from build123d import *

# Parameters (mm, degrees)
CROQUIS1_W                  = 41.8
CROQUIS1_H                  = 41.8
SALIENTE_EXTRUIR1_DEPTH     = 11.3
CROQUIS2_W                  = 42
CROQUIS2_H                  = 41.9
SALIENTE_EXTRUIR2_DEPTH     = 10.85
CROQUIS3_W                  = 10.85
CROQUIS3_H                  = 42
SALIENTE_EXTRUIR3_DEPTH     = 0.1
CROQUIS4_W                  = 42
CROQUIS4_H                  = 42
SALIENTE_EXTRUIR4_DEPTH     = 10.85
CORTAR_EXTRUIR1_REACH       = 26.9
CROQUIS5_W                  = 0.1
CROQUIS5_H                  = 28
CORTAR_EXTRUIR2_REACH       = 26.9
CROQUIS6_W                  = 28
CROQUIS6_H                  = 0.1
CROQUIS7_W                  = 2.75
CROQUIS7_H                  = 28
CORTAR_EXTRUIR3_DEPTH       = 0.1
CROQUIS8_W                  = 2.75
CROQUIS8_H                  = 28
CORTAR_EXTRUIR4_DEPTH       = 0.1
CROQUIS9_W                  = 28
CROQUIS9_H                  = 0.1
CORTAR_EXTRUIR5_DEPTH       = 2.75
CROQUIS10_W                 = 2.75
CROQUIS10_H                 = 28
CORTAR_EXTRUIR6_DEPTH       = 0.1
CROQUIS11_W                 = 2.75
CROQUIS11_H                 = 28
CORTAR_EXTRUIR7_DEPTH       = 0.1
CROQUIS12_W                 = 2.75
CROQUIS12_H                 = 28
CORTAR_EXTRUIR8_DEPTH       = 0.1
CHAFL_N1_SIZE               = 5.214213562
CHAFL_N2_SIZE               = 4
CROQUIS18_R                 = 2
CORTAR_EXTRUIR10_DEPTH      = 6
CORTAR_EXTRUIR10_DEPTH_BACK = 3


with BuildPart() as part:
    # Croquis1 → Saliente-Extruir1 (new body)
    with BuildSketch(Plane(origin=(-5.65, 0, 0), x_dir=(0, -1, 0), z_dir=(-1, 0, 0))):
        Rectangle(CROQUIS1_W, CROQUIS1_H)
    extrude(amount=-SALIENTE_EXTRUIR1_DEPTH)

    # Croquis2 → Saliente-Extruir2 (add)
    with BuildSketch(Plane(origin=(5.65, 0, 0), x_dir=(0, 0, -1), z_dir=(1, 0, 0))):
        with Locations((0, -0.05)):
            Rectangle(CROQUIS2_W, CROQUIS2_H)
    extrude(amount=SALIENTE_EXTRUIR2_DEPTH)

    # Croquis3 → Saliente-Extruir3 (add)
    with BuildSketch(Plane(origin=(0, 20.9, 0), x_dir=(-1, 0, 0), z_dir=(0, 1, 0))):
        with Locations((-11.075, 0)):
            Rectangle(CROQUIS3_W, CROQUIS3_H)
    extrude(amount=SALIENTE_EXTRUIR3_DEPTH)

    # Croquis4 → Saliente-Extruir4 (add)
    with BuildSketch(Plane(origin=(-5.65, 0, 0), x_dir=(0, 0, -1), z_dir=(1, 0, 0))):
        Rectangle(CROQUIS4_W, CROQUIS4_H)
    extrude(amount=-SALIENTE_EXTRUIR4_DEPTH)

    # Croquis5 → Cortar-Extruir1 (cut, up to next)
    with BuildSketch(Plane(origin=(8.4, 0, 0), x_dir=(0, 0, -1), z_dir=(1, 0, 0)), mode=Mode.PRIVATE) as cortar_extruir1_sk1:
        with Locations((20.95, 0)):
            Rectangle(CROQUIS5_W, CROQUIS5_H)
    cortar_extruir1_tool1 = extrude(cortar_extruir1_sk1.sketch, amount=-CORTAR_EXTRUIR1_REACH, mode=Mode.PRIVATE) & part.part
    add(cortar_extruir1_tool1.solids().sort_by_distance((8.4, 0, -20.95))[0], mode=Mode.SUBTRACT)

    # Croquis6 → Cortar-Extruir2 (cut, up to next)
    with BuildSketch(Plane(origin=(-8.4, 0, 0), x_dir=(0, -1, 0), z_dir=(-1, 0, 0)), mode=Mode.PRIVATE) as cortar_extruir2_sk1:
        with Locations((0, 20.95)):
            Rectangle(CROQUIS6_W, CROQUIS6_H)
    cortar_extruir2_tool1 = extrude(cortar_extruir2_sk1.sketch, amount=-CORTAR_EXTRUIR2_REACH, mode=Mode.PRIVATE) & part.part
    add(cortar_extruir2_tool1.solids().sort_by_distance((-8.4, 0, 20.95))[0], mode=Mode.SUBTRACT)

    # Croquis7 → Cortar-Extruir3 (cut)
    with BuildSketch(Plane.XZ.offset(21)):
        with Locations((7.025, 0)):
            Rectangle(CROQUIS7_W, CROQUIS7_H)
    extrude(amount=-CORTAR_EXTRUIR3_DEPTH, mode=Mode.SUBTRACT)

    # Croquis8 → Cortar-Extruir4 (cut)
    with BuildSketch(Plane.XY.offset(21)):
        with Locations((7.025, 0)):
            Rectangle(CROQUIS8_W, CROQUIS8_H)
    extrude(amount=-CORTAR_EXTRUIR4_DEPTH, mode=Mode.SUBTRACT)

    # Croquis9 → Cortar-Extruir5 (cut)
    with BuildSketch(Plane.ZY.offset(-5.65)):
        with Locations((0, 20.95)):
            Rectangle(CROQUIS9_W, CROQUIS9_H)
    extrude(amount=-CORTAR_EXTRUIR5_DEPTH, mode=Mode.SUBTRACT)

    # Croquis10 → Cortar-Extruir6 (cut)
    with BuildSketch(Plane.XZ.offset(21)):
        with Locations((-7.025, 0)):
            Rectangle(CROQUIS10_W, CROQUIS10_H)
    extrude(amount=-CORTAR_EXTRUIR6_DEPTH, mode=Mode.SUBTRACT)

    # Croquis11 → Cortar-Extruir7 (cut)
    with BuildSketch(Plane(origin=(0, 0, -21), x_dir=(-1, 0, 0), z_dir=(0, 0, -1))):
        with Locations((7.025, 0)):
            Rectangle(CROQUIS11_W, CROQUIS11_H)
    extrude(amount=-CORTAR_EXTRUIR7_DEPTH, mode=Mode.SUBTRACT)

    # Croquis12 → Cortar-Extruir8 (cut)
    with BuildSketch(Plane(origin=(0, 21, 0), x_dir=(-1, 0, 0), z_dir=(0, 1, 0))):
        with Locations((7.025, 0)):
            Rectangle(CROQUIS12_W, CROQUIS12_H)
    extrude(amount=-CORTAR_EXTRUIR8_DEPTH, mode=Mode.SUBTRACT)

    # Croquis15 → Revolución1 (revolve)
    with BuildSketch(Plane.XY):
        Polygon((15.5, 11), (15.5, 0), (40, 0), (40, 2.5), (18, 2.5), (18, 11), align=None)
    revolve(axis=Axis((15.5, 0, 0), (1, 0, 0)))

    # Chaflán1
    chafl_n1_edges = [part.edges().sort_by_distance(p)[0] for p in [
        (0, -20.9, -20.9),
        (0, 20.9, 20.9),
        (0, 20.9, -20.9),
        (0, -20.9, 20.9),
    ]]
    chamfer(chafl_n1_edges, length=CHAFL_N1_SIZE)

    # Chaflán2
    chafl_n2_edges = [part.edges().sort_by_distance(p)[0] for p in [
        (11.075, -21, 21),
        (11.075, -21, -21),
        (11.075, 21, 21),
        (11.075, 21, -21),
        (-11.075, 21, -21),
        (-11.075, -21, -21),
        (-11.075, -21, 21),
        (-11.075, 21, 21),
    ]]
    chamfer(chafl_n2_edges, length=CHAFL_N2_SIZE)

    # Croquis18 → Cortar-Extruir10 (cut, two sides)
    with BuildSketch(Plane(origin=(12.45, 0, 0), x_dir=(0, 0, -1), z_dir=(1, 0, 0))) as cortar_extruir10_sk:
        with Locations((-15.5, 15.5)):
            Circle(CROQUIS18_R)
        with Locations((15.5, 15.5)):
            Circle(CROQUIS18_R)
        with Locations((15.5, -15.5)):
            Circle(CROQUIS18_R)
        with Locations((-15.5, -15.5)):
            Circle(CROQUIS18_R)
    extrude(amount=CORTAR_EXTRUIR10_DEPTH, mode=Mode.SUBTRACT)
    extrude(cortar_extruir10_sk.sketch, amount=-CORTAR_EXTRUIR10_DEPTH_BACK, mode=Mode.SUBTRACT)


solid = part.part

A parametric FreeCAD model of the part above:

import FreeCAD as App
import Part
import Sketcher
Q = App.Units.Quantity


def edges_at(feature, points):
    """Names of the edges that pass closest to the given points."""
    edges = feature.Shape.Edges
    near = lambda p: min(range(len(edges)), key=lambda i: edges[i].distToShape(Part.Vertex(*p))[0])
    return sorted({f"Edge{near(p) + 1}" for p in points})


def add_polygon(sketch, points):
    """Adds a closed chain of lines whose ends are joined by coincident constraints."""
    first, n = sketch.GeometryCount, len(points)
    for a, b in zip(points, points[1:] + points[:1]):
        sketch.addGeometry(Part.LineSegment(App.Vector(*a, 0), App.Vector(*b, 0)), False)
    for i in range(n):
        sketch.addConstraint(Sketcher.Constraint("Coincident", first + i, 2, first + (i + 1) % n, 1))

doc = App.newDocument("Part")
body = doc.addObject("PartDesign::Body", "Body")

# Sketch on YZ plane
sketch1 = doc.addObject("Sketcher::SketchObject", "Sketch")
body.addObject(sketch1)
sketch1.AttachmentSupport = (doc.YZ_Plane, [""])
sketch1.MapMode = "FlatFace"
sketch1.AttachmentOffset = App.Placement(App.Vector(0, 0, -5.65), App.Rotation())
add_polygon(sketch1, [(21, 21), (21, -21), (-21, -21), (-21, 21)])  # lines 0-3
sketch1.addConstraint([
    Sketcher.Constraint("Vertical", 0),
    Sketcher.Constraint("Horizontal", 1),
    Sketcher.Constraint("Vertical", 2),
    Sketcher.Constraint("Horizontal", 3),
    Sketcher.Constraint("Symmetric", 0, 2, 2, 2, -1, 1),
    Sketcher.Constraint("Equal", 3, 0),
    Sketcher.Constraint("DistanceX", 1, 2, 1, 1, Q("41.8 mm")),
])
pad1 = doc.addObject("PartDesign::Pad", "Pad")
body.addObject(pad1)
pad1.Profile = sketch1
pad1.Length = 11.3

# Sketch on YZ plane
sketch2 = doc.addObject("Sketcher::SketchObject", "Sketch001")
body.addObject(sketch2)
sketch2.AttachmentSupport = (doc.YZ_Plane, [""])
sketch2.MapMode = "FlatFace"
sketch2.AttachmentOffset = App.Placement(App.Vector(0, 0, 5.65), App.Rotation())
add_polygon(sketch2, [(21, 21), (-21, 21), (-21, -21), (21, -21)])  # lines 0-3
sketch2.addConstraint([
    Sketcher.Constraint("Horizontal", 0),
    Sketcher.Constraint("Vertical", 1),
    Sketcher.Constraint("Horizontal", 2),
    Sketcher.Constraint("Vertical", 3),
    Sketcher.Constraint("DistanceY", 1, 2, 1, 1, Q("42 mm")),
    Sketcher.Constraint("DistanceX", 0, 2, 0, 1, Q("41.9 mm")),
    Sketcher.Constraint("DistanceX", 0, 2, -1, 1, Q("21 mm")),
    Sketcher.Constraint("DistanceY", -1, 1, 0, 2, Q("21 mm")),
])
pad2 = doc.addObject("PartDesign::Pad", "Pad001")
body.addObject(pad2)
pad2.Profile = sketch2
pad2.Length = 10.85

# Sketch on XZ plane
sketch3 = doc.addObject("Sketcher::SketchObject", "Sketch002")
body.addObject(sketch3)
sketch3.AttachmentSupport = (doc.XZ_Plane, [""])
sketch3.MapMode = "FlatFace"
sketch3.AttachmentOffset = App.Placement(App.Vector(0, 0, -20.9), App.Rotation())
add_polygon(sketch3, [(16, 21), (16, -21), (6, -21), (6, 21)])  # lines 0-3
sketch3.addConstraint([
    Sketcher.Constraint("Vertical", 0),
    Sketcher.Constraint("Horizontal", 1),
    Sketcher.Constraint("Vertical", 2),
    Sketcher.Constraint("Horizontal", 3),
    Sketcher.Constraint("DistanceY", 0, 2, 0, 1, Q("42 mm")),
    Sketcher.Constraint("DistanceY", 0, 2, -1, 1, Q("21 mm")),
    Sketcher.Constraint("DistanceX", 1, 2, 1, 1, Q("10.85 mm")),
    Sketcher.Constraint("DistanceX", -1, 1, 0, 2, Q("16.5 mm")),
])
pad3 = doc.addObject("PartDesign::Pad", "Pad002")
body.addObject(pad3)
pad3.Profile = sketch3
pad3.Length = 0.1
pad3.Reversed = True

# Sketch on YZ plane
sketch4 = doc.addObject("Sketcher::SketchObject", "Sketch003")
body.addObject(sketch4)
sketch4.AttachmentSupport = (doc.YZ_Plane, [""])
sketch4.MapMode = "FlatFace"
sketch4.AttachmentOffset = App.Placement(App.Vector(0, 0, -5.65), App.Rotation())
add_polygon(sketch4, [(21, 21), (-21, 21), (-21, -21), (21, -21)])  # lines 0-3
sketch4.addConstraint([
    Sketcher.Constraint("Horizontal", 0),
    Sketcher.Constraint("Vertical", 1),
    Sketcher.Constraint("Horizontal", 2),
    Sketcher.Constraint("Vertical", 3),
    Sketcher.Constraint("Symmetric", 0, 2, 2, 2, -1, 1),
    Sketcher.Constraint("Equal", 2, 1),
    Sketcher.Constraint("DistanceX", 0, 2, 0, 1, Q("42 mm")),
])
pad4 = doc.addObject("PartDesign::Pad", "Pad003")
body.addObject(pad4)
pad4.Profile = sketch4
pad4.Length = 10.85
pad4.Reversed = True

# Sketch on YZ plane
sketch5 = doc.addObject("Sketcher::SketchObject", "Sketch004")
body.addObject(sketch5)
sketch5.AttachmentSupport = (doc.YZ_Plane, [""])
sketch5.MapMode = "FlatFace"
sketch5.AttachmentOffset = App.Placement(App.Vector(0, 0, 8.4), App.Rotation())
add_polygon(sketch5, [(14, -20.9), (-14, -20.9), (-14, -21), (14, -21)])  # lines 0-3
sketch5.addConstraint([
    Sketcher.Constraint("Horizontal", 0),
    Sketcher.Constraint("Vertical", 1),
    Sketcher.Constraint("Horizontal", 2),
    Sketcher.Constraint("Vertical", 3),
    Sketcher.Constraint("DistanceX", 0, 2, 0, 1, Q("28 mm")),
    Sketcher.Constraint("DistanceY", 1, 2, 1, 1, Q("0.1 mm")),
    Sketcher.Constraint("DistanceX", 0, 2, -1, 1, Q("14 mm")),
    Sketcher.Constraint("DistanceY", 1, 2, -1, 1, Q("21 mm")),
])
pocket1 = doc.addObject("PartDesign::Pocket", "Pocket")
body.addObject(pocket1)
pocket1.Profile = sketch5
pocket1.Type = "UpToFirst"

# Sketch on YZ plane
sketch6 = doc.addObject("Sketcher::SketchObject", "Sketch005")
body.addObject(sketch6)
sketch6.AttachmentSupport = (doc.YZ_Plane, [""])
sketch6.MapMode = "FlatFace"
sketch6.AttachmentOffset = App.Placement(App.Vector(0, 0, -8.4), App.Rotation())
add_polygon(sketch6, [(14, 21), (14, 20.9), (-14, 20.9), (-14, 21)])  # lines 0-3
sketch6.addConstraint([
    Sketcher.Constraint("Vertical", 0),
    Sketcher.Constraint("Horizontal", 1),
    Sketcher.Constraint("Vertical", 2),
    Sketcher.Constraint("Horizontal", 3),
    Sketcher.Constraint("DistanceX", 1, 2, 1, 1, Q("28 mm")),
    Sketcher.Constraint("DistanceY", 0, 2, 0, 1, Q("0.1 mm")),
    Sketcher.Constraint("DistanceX", -1, 1, 0, 2, Q("14 mm")),
    Sketcher.Constraint("DistanceY", -1, 1, 2, 2, Q("21 mm")),
])
pocket2 = doc.addObject("PartDesign::Pocket", "Pocket001")
body.addObject(pocket2)
pocket2.Profile = sketch6
pocket2.Type = "UpToFirst"
pocket2.Reversed = True

# Sketch on XZ plane
sketch7 = doc.addObject("Sketcher::SketchObject", "Sketch006")
body.addObject(sketch7)
sketch7.AttachmentSupport = (doc.XZ_Plane, [""])
sketch7.MapMode = "FlatFace"
sketch7.AttachmentOffset = App.Placement(App.Vector(0, 0, 21), App.Rotation())
add_polygon(sketch7, [(5.7, 14), (5.7, -14), (8.4, -14), (8.4, 14)])  # lines 0-3
sketch7.addConstraint([
    Sketcher.Constraint("Vertical", 0),
    Sketcher.Constraint("Horizontal", 1),
    Sketcher.Constraint("Vertical", 2),
    Sketcher.Constraint("Horizontal", 3),
    Sketcher.Constraint("DistanceY", 0, 2, 0, 1, Q("28 mm")),
    Sketcher.Constraint("DistanceY", 0, 2, -1, 1, Q("14 mm")),
    Sketcher.Constraint("DistanceX", 1, 1, 1, 2, Q("2.75 mm")),
    Sketcher.Constraint("DistanceX", -1, 1, 1, 2, Q("8.4 mm")),
])
pocket3 = doc.addObject("PartDesign::Pocket", "Pocket002")
body.addObject(pocket3)
pocket3.Profile = sketch7
pocket3.Length = 0.1

# Sketch on XY plane
sketch8 = doc.addObject("Sketcher::SketchObject", "Sketch007")
body.addObject(sketch8)
sketch8.AttachmentSupport = (doc.XY_Plane, [""])
sketch8.MapMode = "FlatFace"
sketch8.AttachmentOffset = App.Placement(App.Vector(0, 0, 21), App.Rotation())
add_polygon(sketch8, [(5.7, 14), (5.7, -14), (8.4, -14), (8.4, 14)])  # lines 0-3
sketch8.addConstraint([
    Sketcher.Constraint("Vertical", 0),
    Sketcher.Constraint("Horizontal", 1),
    Sketcher.Constraint("Vertical", 2),
    Sketcher.Constraint("Horizontal", 3),
    Sketcher.Constraint("DistanceY", 0, 2, 0, 1, Q("28 mm")),
    Sketcher.Constraint("DistanceY", 0, 2, -1, 1, Q("14 mm")),
    Sketcher.Constraint("DistanceX", 1, 1, 1, 2, Q("2.75 mm")),
    Sketcher.Constraint("DistanceX", -1, 1, 1, 2, Q("8.4 mm")),
])
pocket4 = doc.addObject("PartDesign::Pocket", "Pocket003")
body.addObject(pocket4)
pocket4.Profile = sketch8
pocket4.Length = 0.1

# Sketch on YZ plane
sketch9 = doc.addObject("Sketcher::SketchObject", "Sketch008")
body.addObject(sketch9)
sketch9.AttachmentSupport = (doc.YZ_Plane, [""])
sketch9.MapMode = "FlatFace"
sketch9.AttachmentOffset = App.Placement(App.Vector(0, 0, 5.65), App.Rotation())
add_polygon(sketch9, [(21, -14), (20.9, -14), (20.9, 14), (21, 14)])  # lines 0-3
sketch9.addConstraint([
    Sketcher.Constraint("Horizontal", 0),
    Sketcher.Constraint("Vertical", 1),
    Sketcher.Constraint("Horizontal", 2),
    Sketcher.Constraint("Vertical", 3),
    Sketcher.Constraint("DistanceY", 1, 1, 1, 2, Q("28 mm")),
    Sketcher.Constraint("DistanceX", 0, 2, 0, 1, Q("0.1 mm")),
    Sketcher.Constraint("DistanceY", 0, 2, -1, 1, Q("14 mm")),
    Sketcher.Constraint("DistanceX", -1, 1, 2, 2, Q("21 mm")),
])
pocket5 = doc.addObject("PartDesign::Pocket", "Pocket004")
body.addObject(pocket5)
pocket5.Profile = sketch9
pocket5.Length = 2.75
pocket5.Reversed = True

# Sketch on XZ plane
sketch10 = doc.addObject("Sketcher::SketchObject", "Sketch009")
body.addObject(sketch10)
sketch10.AttachmentSupport = (doc.XZ_Plane, [""])
sketch10.MapMode = "FlatFace"
sketch10.AttachmentOffset = App.Placement(App.Vector(0, 0, 21), App.Rotation())
add_polygon(sketch10, [(-8.4, 14), (-8.4, -14), (-5.7, -14), (-5.7, 14)])  # lines 0-3
sketch10.addConstraint([
    Sketcher.Constraint("Vertical", 0),
    Sketcher.Constraint("Horizontal", 1),
    Sketcher.Constraint("Vertical", 2),
    Sketcher.Constraint("Horizontal", 3),
    Sketcher.Constraint("DistanceY", 0, 2, 0, 1, Q("28 mm")),
    Sketcher.Constraint("DistanceY", 0, 2, -1, 1, Q("14 mm")),
    Sketcher.Constraint("DistanceX", 1, 1, 1, 2, Q("2.75 mm")),
    Sketcher.Constraint("DistanceX", 0, 2, -1, 1, Q("8.4 mm")),
])
pocket6 = doc.addObject("PartDesign::Pocket", "Pocket005")
body.addObject(pocket6)
pocket6.Profile = sketch10
pocket6.Length = 0.1

# Sketch on XY plane
sketch11 = doc.addObject("Sketcher::SketchObject", "Sketch010")
body.addObject(sketch11)
sketch11.AttachmentSupport = (doc.XY_Plane, [""])
sketch11.MapMode = "FlatFace"
sketch11.AttachmentOffset = App.Placement(App.Vector(0, 0, -21), App.Rotation())
add_polygon(sketch11, [(-5.7, 14), (-5.7, -14), (-8.4, -14), (-8.4, 14)])  # lines 0-3
sketch11.addConstraint([
    Sketcher.Constraint("Vertical", 0),
    Sketcher.Constraint("Horizontal", 1),
    Sketcher.Constraint("Vertical", 2),
    Sketcher.Constraint("Horizontal", 3),
    Sketcher.Constraint("DistanceY", 0, 2, 0, 1, Q("28 mm")),
    Sketcher.Constraint("DistanceY", 0, 2, -1, 1, Q("14 mm")),
    Sketcher.Constraint("DistanceX", 1, 2, 1, 1, Q("2.75 mm")),
    Sketcher.Constraint("DistanceX", 1, 2, -1, 1, Q("8.4 mm")),
])
pocket7 = doc.addObject("PartDesign::Pocket", "Pocket006")
body.addObject(pocket7)
pocket7.Profile = sketch11
pocket7.Length = 0.1
pocket7.Reversed = True

# Sketch on XZ plane
sketch12 = doc.addObject("Sketcher::SketchObject", "Sketch011")
body.addObject(sketch12)
sketch12.AttachmentSupport = (doc.XZ_Plane, [""])
sketch12.MapMode = "FlatFace"
sketch12.AttachmentOffset = App.Placement(App.Vector(0, 0, -21), App.Rotation())
add_polygon(sketch12, [(-5.7, 14), (-5.7, -14), (-8.4, -14), (-8.4, 14)])  # lines 0-3
sketch12.addConstraint([
    Sketcher.Constraint("Vertical", 0),
    Sketcher.Constraint("Horizontal", 1),
    Sketcher.Constraint("Vertical", 2),
    Sketcher.Constraint("Horizontal", 3),
    Sketcher.Constraint("DistanceY", 0, 2, 0, 1, Q("28 mm")),
    Sketcher.Constraint("DistanceY", 0, 2, -1, 1, Q("14 mm")),
    Sketcher.Constraint("DistanceX", 1, 2, 1, 1, Q("2.75 mm")),
    Sketcher.Constraint("DistanceX", 1, 2, -1, 1, Q("8.4 mm")),
])
pocket8 = doc.addObject("PartDesign::Pocket", "Pocket007")
body.addObject(pocket8)
pocket8.Profile = sketch12
pocket8.Length = 0.1
pocket8.Reversed = True

# Sketch on XY plane
sketch13 = doc.addObject("Sketcher::SketchObject", "Sketch012")
body.addObject(sketch13)
sketch13.AttachmentSupport = (doc.XY_Plane, [""])
sketch13.MapMode = "FlatFace"
add_polygon(sketch13, [(15.5, 11), (15.5, 0), (40, 0), (40, 2.5), (18, 2.5), (18, 11)])  # lines 0-5
sketch13.addConstraint([
    Sketcher.Constraint("Vertical", 0),
    Sketcher.Constraint("Horizontal", 1),
    Sketcher.Constraint("Vertical", 2),
    Sketcher.Constraint("Horizontal", 3),
    Sketcher.Constraint("Vertical", 4),
    Sketcher.Constraint("Horizontal", 5),
    Sketcher.Constraint("PointOnObject", 0, 2, -1),
    Sketcher.Constraint("Equal", 5, 2),
    Sketcher.Constraint("DistanceX", 3, 2, 3, 1, Q("22 mm")),
    Sketcher.Constraint("DistanceY", 0, 2, 0, 1, Q("11 mm")),
    Sketcher.Constraint("DistanceX", 1, 1, 1, 2, Q("24.5 mm")),
    Sketcher.Constraint("DistanceX", -1, 1, 1, 2, Q("40 mm")),
])
revolution = doc.addObject("PartDesign::Revolution", "Revolution")
body.addObject(revolution)
revolution.Profile = sketch13
revolution.ReferenceAxis = (sketch13, ["H_Axis"])
revolution.Angle = 360
doc.recompute()

chamfer = doc.addObject("PartDesign::Chamfer", "Chamfer")
body.addObject(chamfer)
chamfer.Base = (revolution, edges_at(revolution, [
    (0, -20.9, -20.9),
    (0, 20.9, 20.9),
    (0, 20.9, -20.9),
    (0, -20.9, 20.9),
]))
chamfer.Size = 5.214214
doc.recompute()

chamfer2 = doc.addObject("PartDesign::Chamfer", "Chamfer001")
body.addObject(chamfer2)
chamfer2.Base = (chamfer, edges_at(chamfer, [
    (11.075, -21, 21),
    (11.075, -21, -21),
    (11.075, 21, 21),
    (11.075, 21, -21),
    (-11.075, 21, -21),
    (-11.075, -21, -21),
    (-11.075, -21, 21),
    (-11.075, 21, 21),
]))
chamfer2.Size = 4

# Sketch on YZ plane
sketch14 = doc.addObject("Sketcher::SketchObject", "Sketch013")
body.addObject(sketch14)
sketch14.AttachmentSupport = (doc.YZ_Plane, [""])
sketch14.MapMode = "FlatFace"
sketch14.AttachmentOffset = App.Placement(App.Vector(0, 0, 12.45), App.Rotation())
sketch14.addGeometry([
    Part.Circle(App.Vector(15.5, 15.5, 0), App.Vector(0, 0, 1), 2),
    Part.Circle(App.Vector(15.5, -15.5, 0), App.Vector(0, 0, 1), 2),
    Part.Circle(App.Vector(-15.5, -15.5, 0), App.Vector(0, 0, 1), 2),
    Part.Circle(App.Vector(-15.5, 15.5, 0), App.Vector(0, 0, 1), 2),
], False)
sketch14.addConstraint([
    Sketcher.Constraint("Equal", 0, 1),
    Sketcher.Constraint("Equal", 1, 2),
    Sketcher.Constraint("Equal", 2, 3),
    Sketcher.Constraint("Symmetric", 0, 3, 2, 3, -1, 1),
    Sketcher.Constraint("Symmetric", 1, 3, 3, 3, -1, 1),
    Sketcher.Constraint("Symmetric", 1, 3, 2, 3, -2),
    Sketcher.Constraint("Diameter", 0, Q("4 mm")),
    Sketcher.Constraint("DistanceY", 1, 3, 0, 3, Q("31 mm")),
    Sketcher.Constraint("DistanceX", 2, 3, 1, 3, Q("31 mm")),
])
pocket9 = doc.addObject("PartDesign::Pocket", "Pocket008")
body.addObject(pocket9)
pocket9.Profile = sketch14
pocket9.Type = "TwoLengths"
pocket9.Length = 6
pocket9.Length2 = 3
pocket9.Reversed = True

doc.recompute()
